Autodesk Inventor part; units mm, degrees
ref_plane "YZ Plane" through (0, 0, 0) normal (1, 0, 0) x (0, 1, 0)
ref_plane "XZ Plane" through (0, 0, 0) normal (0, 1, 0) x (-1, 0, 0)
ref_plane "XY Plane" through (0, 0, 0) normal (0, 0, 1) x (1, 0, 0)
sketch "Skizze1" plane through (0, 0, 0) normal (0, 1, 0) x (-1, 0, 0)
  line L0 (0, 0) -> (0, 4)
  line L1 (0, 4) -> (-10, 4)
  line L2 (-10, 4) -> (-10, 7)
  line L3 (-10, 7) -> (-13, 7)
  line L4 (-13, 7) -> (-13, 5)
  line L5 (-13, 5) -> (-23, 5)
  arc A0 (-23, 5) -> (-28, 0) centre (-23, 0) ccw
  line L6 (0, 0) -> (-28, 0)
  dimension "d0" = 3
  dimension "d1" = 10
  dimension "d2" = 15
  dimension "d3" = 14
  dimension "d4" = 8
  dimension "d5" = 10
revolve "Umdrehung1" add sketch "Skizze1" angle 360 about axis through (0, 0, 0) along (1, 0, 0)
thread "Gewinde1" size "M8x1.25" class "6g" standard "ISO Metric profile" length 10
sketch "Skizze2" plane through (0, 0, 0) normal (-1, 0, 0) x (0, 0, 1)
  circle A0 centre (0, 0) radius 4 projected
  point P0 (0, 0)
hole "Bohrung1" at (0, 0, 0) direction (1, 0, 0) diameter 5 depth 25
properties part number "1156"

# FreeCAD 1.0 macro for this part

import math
import FreeCAD as App
import Part
import Sketcher

doc = App.newDocument("Part")
params = doc.addObject("Spreadsheet::Sheet", "Params")
for row, (alias, value) in enumerate([
    ("sketch1_radius", "5 mm"),
    ("sketch1_width", "10 mm"),
    ("sketch1_width2", "3 mm"),
    ("sketch1_height", "4 mm"),
    ("revolution_angle", "360 deg"),
    ("sketch2_diameter", "5 mm"),
    ("hole_diameter", "5 mm"),
    ("hole_depth", "25 mm"),
], start=1):
    params.set(f"A{row}", alias)
    params.set(f"B{row}", "=" + value)
    params.setAlias(f"B{row}", alias)

body = doc.addObject("PartDesign::Body", "Body")

# Sketch on XZ plane
sketch1 = body.newObject("Sketcher::SketchObject", "Sketch")
sketch1.AttachmentSupport = (doc.getObject("XZ_Plane"), [""])
sketch1.MapMode = "FlatFace"
sketch1.addGeometry([
    Part.LineSegment(App.Vector(28, 0, 0), App.Vector(0, 0, 0)),  # 0
    Part.LineSegment(App.Vector(0, 0, 0), App.Vector(0, 4, 0)),  # 1
    Part.LineSegment(App.Vector(0, 4, 0), App.Vector(10, 4, 0)),  # 2
    Part.LineSegment(App.Vector(10, 4, 0), App.Vector(10, 7, 0)),  # 3
    Part.LineSegment(App.Vector(10, 7, 0), App.Vector(13, 7, 0)),  # 4
    Part.LineSegment(App.Vector(13, 7, 0), App.Vector(13, 5, 0)),  # 5
    Part.LineSegment(App.Vector(13, 5, 0), App.Vector(23, 5, 0)),  # 6
    Part.ArcOfCircle(Part.Circle(App.Vector(23, 0, 0), App.Vector(0, 0, 1), 5), math.radians(0), math.radians(90)),  # 7
], False)
sketch1.addConstraint([
    Sketcher.Constraint("Coincident", 0, 2, 1, 1),
    Sketcher.Constraint("Coincident", 1, 2, 2, 1),
    Sketcher.Constraint("Coincident", 2, 2, 3, 1),
    Sketcher.Constraint("Coincident", 3, 2, 4, 1),
    Sketcher.Constraint("Coincident", 4, 2, 5, 1),
    Sketcher.Constraint("Coincident", 5, 2, 6, 1),
    Sketcher.Constraint("Tangent", 6, 2, 7, 2),
    Sketcher.Constraint("Coincident", 7, 1, 0, 1),
    Sketcher.Constraint("Horizontal", 0),
    Sketcher.Constraint("Vertical", 1),
    Sketcher.Constraint("Horizontal", 2),
    Sketcher.Constraint("Vertical", 3),
    Sketcher.Constraint("Horizontal", 4),
    Sketcher.Constraint("Vertical", 5),
    Sketcher.Constraint("Horizontal", 6),
    Sketcher.Constraint("Coincident", 0, 2, -1, 1),
    Sketcher.Constraint("PointOnObject", 7, 3, -1),
    Sketcher.Constraint("Equal", 2, 6),
    Sketcher.Constraint("Equal", 4, 3),
    Sketcher.Constraint("Radius", 7, 5.0),
    Sketcher.Constraint("DistanceX", 2, 1, 2, 2, 10.0),
    Sketcher.Constraint("DistanceX", 4, 1, 4, 2, 3.0),
    Sketcher.Constraint("DistanceY", 1, 1, 1, 2, 4.0),
])
sketch1.setExpression("Constraints[19]", "Params.sketch1_radius")
sketch1.setExpression("Constraints[20]", "Params.sketch1_width")
sketch1.setExpression("Constraints[21]", "Params.sketch1_width2")
sketch1.setExpression("Constraints[22]", "Params.sketch1_height")
revolution = body.newObject("PartDesign::Revolution", "Revolution")
revolution.Profile = sketch1
revolution.ReferenceAxis = (sketch1, ["H_Axis"])
revolution.setExpression("Angle", "Params.revolution_angle")

# Sketch on YZ plane
sketch2 = body.newObject("Sketcher::SketchObject", "Sketch001")
sketch2.AttachmentSupport = (doc.getObject("YZ_Plane"), [""])
sketch2.MapMode = "FlatFace"
sketch2.addGeometry(Part.Circle(App.Vector(0, 0, 0), App.Vector(0, 0, 1), 2.5), False)
sketch2.addConstraint([
    Sketcher.Constraint("Coincident", 0, 3, -1, 1),
    Sketcher.Constraint("Diameter", 0, 5.0),
])
sketch2.setExpression("Constraints[1]", "Params.sketch2_diameter")
doc.recompute()
hole = body.newObject("PartDesign::Hole", "Hole")
hole.Profile = sketch2
hole.ThreadType = "None"
hole.setExpression("Diameter", "Params.hole_diameter")
hole.DepthType = "Dimension"
hole.setExpression("Depth", "Params.hole_depth")
hole.DrillPoint = "Flat"
hole.Reversed = True

doc.recompute()
